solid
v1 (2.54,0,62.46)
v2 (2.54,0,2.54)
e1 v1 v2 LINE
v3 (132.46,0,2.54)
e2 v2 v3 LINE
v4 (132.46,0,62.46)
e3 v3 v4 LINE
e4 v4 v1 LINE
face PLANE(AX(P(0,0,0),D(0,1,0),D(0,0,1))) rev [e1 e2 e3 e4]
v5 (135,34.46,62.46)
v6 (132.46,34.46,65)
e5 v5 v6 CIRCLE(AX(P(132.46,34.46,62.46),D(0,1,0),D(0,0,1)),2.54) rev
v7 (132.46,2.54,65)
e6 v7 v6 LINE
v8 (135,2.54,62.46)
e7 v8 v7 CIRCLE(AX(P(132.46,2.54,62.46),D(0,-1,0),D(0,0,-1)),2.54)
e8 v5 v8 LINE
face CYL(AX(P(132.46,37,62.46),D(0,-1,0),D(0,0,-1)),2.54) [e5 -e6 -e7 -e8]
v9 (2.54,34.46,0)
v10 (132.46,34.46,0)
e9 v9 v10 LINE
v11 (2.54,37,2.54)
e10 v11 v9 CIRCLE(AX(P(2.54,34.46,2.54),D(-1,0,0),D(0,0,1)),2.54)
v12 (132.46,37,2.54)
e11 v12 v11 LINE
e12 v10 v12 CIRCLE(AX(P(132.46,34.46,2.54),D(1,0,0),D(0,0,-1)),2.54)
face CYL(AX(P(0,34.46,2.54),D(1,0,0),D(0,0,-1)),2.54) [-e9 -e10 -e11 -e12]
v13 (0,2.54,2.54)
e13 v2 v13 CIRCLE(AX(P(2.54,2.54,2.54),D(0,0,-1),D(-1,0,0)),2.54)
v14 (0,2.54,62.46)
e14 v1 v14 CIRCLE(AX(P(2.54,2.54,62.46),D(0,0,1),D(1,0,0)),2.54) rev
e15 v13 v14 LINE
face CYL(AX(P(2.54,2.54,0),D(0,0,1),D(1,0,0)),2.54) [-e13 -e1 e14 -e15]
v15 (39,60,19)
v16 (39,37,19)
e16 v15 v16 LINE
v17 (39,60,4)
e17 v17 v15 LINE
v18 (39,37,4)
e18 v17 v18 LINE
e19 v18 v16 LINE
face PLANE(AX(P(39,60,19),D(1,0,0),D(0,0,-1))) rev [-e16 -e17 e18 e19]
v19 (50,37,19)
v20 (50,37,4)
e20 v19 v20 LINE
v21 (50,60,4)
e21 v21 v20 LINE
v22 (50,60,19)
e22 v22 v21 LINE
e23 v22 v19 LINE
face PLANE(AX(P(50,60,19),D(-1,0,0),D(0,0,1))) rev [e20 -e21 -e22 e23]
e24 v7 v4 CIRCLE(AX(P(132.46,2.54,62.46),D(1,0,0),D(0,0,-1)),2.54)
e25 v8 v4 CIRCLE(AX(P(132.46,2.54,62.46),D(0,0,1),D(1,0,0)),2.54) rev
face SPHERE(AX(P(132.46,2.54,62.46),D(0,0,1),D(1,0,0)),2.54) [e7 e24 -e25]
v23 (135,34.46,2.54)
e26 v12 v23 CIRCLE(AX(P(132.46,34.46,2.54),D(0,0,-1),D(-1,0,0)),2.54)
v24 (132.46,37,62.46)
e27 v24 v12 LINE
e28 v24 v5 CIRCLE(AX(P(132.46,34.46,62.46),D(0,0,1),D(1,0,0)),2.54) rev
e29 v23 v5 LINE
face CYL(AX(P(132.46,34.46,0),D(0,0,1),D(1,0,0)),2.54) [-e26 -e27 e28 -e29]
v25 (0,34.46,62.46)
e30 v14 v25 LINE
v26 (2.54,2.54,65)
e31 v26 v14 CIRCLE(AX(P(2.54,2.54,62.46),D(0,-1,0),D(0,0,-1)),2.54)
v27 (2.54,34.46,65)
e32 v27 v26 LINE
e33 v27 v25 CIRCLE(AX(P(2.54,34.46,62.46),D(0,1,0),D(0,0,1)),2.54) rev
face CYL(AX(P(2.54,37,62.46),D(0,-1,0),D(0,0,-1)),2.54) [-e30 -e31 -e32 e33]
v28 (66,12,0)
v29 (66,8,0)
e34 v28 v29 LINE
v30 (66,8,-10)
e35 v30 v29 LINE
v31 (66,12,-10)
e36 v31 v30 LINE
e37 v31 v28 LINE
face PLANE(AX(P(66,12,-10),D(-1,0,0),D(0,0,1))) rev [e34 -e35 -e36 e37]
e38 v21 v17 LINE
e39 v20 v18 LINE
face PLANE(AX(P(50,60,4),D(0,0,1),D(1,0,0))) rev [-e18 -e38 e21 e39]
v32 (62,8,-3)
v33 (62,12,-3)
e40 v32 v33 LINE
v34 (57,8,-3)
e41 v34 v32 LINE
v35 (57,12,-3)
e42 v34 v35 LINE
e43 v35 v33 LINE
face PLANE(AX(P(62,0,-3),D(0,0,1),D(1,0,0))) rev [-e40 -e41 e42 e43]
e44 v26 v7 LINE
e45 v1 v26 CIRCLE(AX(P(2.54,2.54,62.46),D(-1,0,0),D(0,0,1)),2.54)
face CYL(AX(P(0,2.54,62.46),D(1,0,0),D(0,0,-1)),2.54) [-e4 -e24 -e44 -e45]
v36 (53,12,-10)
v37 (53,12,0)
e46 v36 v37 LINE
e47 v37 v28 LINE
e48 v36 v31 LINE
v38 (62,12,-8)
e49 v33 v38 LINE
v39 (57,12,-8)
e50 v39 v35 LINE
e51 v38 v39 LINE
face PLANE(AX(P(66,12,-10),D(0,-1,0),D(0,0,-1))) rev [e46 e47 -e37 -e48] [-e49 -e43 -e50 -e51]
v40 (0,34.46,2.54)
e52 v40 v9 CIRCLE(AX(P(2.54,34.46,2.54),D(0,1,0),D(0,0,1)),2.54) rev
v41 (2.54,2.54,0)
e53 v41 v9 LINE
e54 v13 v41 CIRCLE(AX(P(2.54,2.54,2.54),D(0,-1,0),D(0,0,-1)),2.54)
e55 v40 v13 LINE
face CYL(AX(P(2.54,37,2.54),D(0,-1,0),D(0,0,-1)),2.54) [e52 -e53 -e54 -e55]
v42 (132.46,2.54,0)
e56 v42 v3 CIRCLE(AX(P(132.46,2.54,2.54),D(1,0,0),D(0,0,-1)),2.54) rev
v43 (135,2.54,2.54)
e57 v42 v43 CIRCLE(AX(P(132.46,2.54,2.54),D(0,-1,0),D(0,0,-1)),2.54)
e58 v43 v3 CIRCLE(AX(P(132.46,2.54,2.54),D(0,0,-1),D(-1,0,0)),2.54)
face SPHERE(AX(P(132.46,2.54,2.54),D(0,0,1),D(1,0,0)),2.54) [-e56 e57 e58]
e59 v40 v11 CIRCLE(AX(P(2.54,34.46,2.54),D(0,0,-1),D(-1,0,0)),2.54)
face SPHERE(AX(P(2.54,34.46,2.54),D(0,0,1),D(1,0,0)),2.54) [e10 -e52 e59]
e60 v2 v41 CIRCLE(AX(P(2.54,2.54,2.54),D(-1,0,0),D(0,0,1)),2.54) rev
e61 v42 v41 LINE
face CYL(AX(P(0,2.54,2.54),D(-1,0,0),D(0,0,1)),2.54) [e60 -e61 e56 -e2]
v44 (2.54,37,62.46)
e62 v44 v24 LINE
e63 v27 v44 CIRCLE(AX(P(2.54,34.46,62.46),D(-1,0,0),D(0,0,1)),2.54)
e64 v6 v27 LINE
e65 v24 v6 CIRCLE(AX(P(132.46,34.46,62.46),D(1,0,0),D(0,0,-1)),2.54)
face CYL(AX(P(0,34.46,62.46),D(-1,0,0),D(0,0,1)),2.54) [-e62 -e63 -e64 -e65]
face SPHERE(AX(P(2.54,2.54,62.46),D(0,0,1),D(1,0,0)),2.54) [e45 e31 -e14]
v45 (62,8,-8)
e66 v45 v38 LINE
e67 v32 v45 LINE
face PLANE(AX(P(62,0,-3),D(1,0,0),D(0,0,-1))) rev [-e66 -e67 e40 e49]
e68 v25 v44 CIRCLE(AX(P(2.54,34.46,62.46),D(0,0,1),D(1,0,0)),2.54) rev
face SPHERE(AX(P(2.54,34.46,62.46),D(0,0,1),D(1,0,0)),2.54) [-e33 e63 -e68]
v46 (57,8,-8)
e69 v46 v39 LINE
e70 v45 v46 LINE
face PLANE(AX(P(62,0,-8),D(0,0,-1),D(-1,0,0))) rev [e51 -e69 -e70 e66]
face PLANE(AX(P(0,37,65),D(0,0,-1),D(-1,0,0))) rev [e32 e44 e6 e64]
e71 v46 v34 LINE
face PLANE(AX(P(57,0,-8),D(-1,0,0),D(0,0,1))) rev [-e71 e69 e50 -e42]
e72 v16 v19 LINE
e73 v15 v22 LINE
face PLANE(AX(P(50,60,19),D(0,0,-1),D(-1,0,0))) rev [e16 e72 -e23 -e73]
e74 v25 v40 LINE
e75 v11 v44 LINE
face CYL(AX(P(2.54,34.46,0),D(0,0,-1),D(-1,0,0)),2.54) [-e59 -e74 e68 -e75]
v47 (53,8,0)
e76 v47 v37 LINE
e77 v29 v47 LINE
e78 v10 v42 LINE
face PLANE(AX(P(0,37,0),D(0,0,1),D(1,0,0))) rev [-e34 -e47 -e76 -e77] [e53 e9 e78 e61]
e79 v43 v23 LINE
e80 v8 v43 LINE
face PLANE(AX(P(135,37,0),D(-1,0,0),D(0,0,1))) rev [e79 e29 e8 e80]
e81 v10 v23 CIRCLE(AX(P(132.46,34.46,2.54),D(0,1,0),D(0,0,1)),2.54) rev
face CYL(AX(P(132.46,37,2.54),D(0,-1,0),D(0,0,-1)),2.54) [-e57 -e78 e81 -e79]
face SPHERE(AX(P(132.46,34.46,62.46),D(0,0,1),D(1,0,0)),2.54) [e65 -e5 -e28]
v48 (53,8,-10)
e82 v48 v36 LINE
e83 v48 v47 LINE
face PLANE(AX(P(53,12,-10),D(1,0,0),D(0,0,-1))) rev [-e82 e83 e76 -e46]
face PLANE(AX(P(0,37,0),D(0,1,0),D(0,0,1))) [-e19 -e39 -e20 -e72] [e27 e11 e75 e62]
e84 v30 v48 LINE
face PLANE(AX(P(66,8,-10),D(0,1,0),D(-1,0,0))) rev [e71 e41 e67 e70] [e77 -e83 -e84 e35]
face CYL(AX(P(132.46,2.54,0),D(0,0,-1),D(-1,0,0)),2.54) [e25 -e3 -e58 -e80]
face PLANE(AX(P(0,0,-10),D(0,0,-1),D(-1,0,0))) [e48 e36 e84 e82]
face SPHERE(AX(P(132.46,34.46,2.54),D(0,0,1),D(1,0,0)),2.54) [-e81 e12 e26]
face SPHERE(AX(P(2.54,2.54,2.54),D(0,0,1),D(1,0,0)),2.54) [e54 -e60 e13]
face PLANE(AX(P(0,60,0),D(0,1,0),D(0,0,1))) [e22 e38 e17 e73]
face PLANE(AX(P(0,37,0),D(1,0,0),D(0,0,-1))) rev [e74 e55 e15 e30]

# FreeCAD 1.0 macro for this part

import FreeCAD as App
import Part
import Sketcher

V = App.Vector

doc = App.newDocument("Part")
body = doc.addObject("PartDesign::Body", "Body")

# Sketch on XZ plane
sketch1 = body.newObject("Sketcher::SketchObject", "Sketch")
sketch1.AttachmentSupport = (doc.getObject("XZ_Plane"), [""])
sketch1.MapMode = "FlatFace"
sketch1.addGeometry([
    Part.LineSegment(V(0, 0, 0), V(0, 65, 0)),
    Part.LineSegment(V(0, 65, 0), V(135, 65, 0)),
    Part.LineSegment(V(135, 65, 0), V(135, 0, 0)),
    Part.LineSegment(V(135, 0, 0), V(0, 0, 0)),
], False)
sketch1.addConstraint([
    Sketcher.Constraint("Coincident", 0, 2, 1, 1),
    Sketcher.Constraint("Coincident", 1, 2, 2, 1),
    Sketcher.Constraint("Coincident", 2, 2, 3, 1),
    Sketcher.Constraint("Coincident", 3, 2, 0, 1),
    Sketcher.Constraint("Vertical", 0),
    Sketcher.Constraint("Horizontal", 1),
    Sketcher.Constraint("Vertical", 2),
    Sketcher.Constraint("Horizontal", 3),
    Sketcher.Constraint("Coincident", 3, 2, -1, 1),
    Sketcher.Constraint("DistanceX", 1, 1, 1, 2, 135.0),
    Sketcher.Constraint("DistanceY", 0, 1, 0, 2, 65.0),
])
pad1 = body.newObject("PartDesign::Pad", "Pad")
pad1.Profile = sketch1
pad1.Length = 37
pad1.Reversed = True
doc.recompute()

fillet = body.newObject("PartDesign::Fillet", "Fillet")
fillet.Base = (pad1, ["Edge1"])
fillet.UseAllEdges = True
fillet.Radius = 2.54

# Sketch on XZ plane
sketch2 = body.newObject("Sketcher::SketchObject", "Sketch001")
sketch2.AttachmentSupport = (doc.getObject("XZ_Plane"), [""])
sketch2.MapMode = "FlatFace"
sketch2.AttachmentOffset = App.Placement(V(0, 0, -37), App.Rotation())
sketch2.addGeometry([
    Part.LineSegment(V(39, 4, 0), V(39, 19, 0)),
    Part.LineSegment(V(39, 19, 0), V(50, 19, 0)),
    Part.LineSegment(V(50, 19, 0), V(50, 4, 0)),
    Part.LineSegment(V(50, 4, 0), V(39, 4, 0)),
], False)
sketch2.addConstraint([
    Sketcher.Constraint("Coincident", 0, 2, 1, 1),
    Sketcher.Constraint("Coincident", 1, 2, 2, 1),
    Sketcher.Constraint("Coincident", 2, 2, 3, 1),
    Sketcher.Constraint("Coincident", 3, 2, 0, 1),
    Sketcher.Constraint("Vertical", 0),
    Sketcher.Constraint("Horizontal", 1),
    Sketcher.Constraint("Vertical", 2),
    Sketcher.Constraint("Horizontal", 3),
    Sketcher.Constraint("DistanceX", 1, 1, 1, 2, 11.0),
    Sketcher.Constraint("DistanceY", 0, 1, 0, 2, 15.0),
    Sketcher.Constraint("DistanceX", -1, 1, 0, 2, 39.0),
    Sketcher.Constraint("DistanceY", -1, 1, 0, 2, 19.0),
])
pad2 = body.newObject("PartDesign::Pad", "Pad001")
pad2.Profile = sketch2
pad2.Length = 23
pad2.Reversed = True

# Sketch on XY plane
sketch3 = body.newObject("Sketcher::SketchObject", "Sketch002")
sketch3.AttachmentSupport = (doc.getObject("XY_Plane"), [""])
sketch3.MapMode = "FlatFace"
sketch3.addGeometry([
    Part.LineSegment(V(66, 12, 0), V(66, 8, 0)),
    Part.LineSegment(V(66, 8, 0), V(53, 8, 0)),
    Part.LineSegment(V(53, 8, 0), V(53, 12, 0)),
    Part.LineSegment(V(53, 12, 0), V(66, 12, 0)),
], False)
sketch3.addConstraint([
    Sketcher.Constraint("Coincident", 0, 2, 1, 1),
    Sketcher.Constraint("Coincident", 1, 2, 2, 1),
    Sketcher.Constraint("Coincident", 2, 2, 3, 1),
    Sketcher.Constraint("Coincident", 3, 2, 0, 1),
    Sketcher.Constraint("Vertical", 0),
    Sketcher.Constraint("Horizontal", 1),
    Sketcher.Constraint("Vertical", 2),
    Sketcher.Constraint("Horizontal", 3),
    Sketcher.Constraint("DistanceX", 1, 2, 1, 1, 13.0),
    Sketcher.Constraint("DistanceY", 0, 2, 0, 1, 4.0),
    Sketcher.Constraint("DistanceX", -1, 1, 0, 2, 66.0),
    Sketcher.Constraint("DistanceY", -1, 1, 0, 2, 8.0),
])
pad3 = body.newObject("PartDesign::Pad", "Pad002")
pad3.Profile = sketch3
pad3.Length = 10
pad3.Reversed = True

# Sketch on XZ plane
sketch4 = body.newObject("Sketcher::SketchObject", "Sketch003")
sketch4.AttachmentSupport = (doc.getObject("XZ_Plane"), [""])
sketch4.MapMode = "FlatFace"
sketch4.AttachmentOffset = App.Placement(V(0, 0, -12), App.Rotation())
sketch4.addGeometry([
    Part.LineSegment(V(57, -8, 0), V(57, -3, 0)),
    Part.LineSegment(V(57, -3, 0), V(62, -3, 0)),
    Part.LineSegment(V(62, -3, 0), V(62, -8, 0)),
    Part.LineSegment(V(62, -8, 0), V(57, -8, 0)),
], False)
sketch4.addConstraint([
    Sketcher.Constraint("Coincident", 0, 2, 1, 1),
    Sketcher.Constraint("Coincident", 1, 2, 2, 1),
    Sketcher.Constraint("Coincident", 2, 2, 3, 1),
    Sketcher.Constraint("Coincident", 3, 2, 0, 1),
    Sketcher.Constraint("Vertical", 0),
    Sketcher.Constraint("Horizontal", 1),
    Sketcher.Constraint("Vertical", 2),
    Sketcher.Constraint("Horizontal", 3),
    Sketcher.Constraint("Equal", 3, 0),
    Sketcher.Constraint("DistanceX", 1, 1, 1, 2, 5.0),
    Sketcher.Constraint("DistanceX", -1, 1, 0, 2, 57.0),
    Sketcher.Constraint("DistanceY", 0, 2, -1, 1, 3.0),
])
pocket1 = body.newObject("PartDesign::Pocket", "Pocket")
pocket1.Profile = sketch4
pocket1.Type = "ThroughAll"
pocket1.Reversed = True

doc.recompute()
